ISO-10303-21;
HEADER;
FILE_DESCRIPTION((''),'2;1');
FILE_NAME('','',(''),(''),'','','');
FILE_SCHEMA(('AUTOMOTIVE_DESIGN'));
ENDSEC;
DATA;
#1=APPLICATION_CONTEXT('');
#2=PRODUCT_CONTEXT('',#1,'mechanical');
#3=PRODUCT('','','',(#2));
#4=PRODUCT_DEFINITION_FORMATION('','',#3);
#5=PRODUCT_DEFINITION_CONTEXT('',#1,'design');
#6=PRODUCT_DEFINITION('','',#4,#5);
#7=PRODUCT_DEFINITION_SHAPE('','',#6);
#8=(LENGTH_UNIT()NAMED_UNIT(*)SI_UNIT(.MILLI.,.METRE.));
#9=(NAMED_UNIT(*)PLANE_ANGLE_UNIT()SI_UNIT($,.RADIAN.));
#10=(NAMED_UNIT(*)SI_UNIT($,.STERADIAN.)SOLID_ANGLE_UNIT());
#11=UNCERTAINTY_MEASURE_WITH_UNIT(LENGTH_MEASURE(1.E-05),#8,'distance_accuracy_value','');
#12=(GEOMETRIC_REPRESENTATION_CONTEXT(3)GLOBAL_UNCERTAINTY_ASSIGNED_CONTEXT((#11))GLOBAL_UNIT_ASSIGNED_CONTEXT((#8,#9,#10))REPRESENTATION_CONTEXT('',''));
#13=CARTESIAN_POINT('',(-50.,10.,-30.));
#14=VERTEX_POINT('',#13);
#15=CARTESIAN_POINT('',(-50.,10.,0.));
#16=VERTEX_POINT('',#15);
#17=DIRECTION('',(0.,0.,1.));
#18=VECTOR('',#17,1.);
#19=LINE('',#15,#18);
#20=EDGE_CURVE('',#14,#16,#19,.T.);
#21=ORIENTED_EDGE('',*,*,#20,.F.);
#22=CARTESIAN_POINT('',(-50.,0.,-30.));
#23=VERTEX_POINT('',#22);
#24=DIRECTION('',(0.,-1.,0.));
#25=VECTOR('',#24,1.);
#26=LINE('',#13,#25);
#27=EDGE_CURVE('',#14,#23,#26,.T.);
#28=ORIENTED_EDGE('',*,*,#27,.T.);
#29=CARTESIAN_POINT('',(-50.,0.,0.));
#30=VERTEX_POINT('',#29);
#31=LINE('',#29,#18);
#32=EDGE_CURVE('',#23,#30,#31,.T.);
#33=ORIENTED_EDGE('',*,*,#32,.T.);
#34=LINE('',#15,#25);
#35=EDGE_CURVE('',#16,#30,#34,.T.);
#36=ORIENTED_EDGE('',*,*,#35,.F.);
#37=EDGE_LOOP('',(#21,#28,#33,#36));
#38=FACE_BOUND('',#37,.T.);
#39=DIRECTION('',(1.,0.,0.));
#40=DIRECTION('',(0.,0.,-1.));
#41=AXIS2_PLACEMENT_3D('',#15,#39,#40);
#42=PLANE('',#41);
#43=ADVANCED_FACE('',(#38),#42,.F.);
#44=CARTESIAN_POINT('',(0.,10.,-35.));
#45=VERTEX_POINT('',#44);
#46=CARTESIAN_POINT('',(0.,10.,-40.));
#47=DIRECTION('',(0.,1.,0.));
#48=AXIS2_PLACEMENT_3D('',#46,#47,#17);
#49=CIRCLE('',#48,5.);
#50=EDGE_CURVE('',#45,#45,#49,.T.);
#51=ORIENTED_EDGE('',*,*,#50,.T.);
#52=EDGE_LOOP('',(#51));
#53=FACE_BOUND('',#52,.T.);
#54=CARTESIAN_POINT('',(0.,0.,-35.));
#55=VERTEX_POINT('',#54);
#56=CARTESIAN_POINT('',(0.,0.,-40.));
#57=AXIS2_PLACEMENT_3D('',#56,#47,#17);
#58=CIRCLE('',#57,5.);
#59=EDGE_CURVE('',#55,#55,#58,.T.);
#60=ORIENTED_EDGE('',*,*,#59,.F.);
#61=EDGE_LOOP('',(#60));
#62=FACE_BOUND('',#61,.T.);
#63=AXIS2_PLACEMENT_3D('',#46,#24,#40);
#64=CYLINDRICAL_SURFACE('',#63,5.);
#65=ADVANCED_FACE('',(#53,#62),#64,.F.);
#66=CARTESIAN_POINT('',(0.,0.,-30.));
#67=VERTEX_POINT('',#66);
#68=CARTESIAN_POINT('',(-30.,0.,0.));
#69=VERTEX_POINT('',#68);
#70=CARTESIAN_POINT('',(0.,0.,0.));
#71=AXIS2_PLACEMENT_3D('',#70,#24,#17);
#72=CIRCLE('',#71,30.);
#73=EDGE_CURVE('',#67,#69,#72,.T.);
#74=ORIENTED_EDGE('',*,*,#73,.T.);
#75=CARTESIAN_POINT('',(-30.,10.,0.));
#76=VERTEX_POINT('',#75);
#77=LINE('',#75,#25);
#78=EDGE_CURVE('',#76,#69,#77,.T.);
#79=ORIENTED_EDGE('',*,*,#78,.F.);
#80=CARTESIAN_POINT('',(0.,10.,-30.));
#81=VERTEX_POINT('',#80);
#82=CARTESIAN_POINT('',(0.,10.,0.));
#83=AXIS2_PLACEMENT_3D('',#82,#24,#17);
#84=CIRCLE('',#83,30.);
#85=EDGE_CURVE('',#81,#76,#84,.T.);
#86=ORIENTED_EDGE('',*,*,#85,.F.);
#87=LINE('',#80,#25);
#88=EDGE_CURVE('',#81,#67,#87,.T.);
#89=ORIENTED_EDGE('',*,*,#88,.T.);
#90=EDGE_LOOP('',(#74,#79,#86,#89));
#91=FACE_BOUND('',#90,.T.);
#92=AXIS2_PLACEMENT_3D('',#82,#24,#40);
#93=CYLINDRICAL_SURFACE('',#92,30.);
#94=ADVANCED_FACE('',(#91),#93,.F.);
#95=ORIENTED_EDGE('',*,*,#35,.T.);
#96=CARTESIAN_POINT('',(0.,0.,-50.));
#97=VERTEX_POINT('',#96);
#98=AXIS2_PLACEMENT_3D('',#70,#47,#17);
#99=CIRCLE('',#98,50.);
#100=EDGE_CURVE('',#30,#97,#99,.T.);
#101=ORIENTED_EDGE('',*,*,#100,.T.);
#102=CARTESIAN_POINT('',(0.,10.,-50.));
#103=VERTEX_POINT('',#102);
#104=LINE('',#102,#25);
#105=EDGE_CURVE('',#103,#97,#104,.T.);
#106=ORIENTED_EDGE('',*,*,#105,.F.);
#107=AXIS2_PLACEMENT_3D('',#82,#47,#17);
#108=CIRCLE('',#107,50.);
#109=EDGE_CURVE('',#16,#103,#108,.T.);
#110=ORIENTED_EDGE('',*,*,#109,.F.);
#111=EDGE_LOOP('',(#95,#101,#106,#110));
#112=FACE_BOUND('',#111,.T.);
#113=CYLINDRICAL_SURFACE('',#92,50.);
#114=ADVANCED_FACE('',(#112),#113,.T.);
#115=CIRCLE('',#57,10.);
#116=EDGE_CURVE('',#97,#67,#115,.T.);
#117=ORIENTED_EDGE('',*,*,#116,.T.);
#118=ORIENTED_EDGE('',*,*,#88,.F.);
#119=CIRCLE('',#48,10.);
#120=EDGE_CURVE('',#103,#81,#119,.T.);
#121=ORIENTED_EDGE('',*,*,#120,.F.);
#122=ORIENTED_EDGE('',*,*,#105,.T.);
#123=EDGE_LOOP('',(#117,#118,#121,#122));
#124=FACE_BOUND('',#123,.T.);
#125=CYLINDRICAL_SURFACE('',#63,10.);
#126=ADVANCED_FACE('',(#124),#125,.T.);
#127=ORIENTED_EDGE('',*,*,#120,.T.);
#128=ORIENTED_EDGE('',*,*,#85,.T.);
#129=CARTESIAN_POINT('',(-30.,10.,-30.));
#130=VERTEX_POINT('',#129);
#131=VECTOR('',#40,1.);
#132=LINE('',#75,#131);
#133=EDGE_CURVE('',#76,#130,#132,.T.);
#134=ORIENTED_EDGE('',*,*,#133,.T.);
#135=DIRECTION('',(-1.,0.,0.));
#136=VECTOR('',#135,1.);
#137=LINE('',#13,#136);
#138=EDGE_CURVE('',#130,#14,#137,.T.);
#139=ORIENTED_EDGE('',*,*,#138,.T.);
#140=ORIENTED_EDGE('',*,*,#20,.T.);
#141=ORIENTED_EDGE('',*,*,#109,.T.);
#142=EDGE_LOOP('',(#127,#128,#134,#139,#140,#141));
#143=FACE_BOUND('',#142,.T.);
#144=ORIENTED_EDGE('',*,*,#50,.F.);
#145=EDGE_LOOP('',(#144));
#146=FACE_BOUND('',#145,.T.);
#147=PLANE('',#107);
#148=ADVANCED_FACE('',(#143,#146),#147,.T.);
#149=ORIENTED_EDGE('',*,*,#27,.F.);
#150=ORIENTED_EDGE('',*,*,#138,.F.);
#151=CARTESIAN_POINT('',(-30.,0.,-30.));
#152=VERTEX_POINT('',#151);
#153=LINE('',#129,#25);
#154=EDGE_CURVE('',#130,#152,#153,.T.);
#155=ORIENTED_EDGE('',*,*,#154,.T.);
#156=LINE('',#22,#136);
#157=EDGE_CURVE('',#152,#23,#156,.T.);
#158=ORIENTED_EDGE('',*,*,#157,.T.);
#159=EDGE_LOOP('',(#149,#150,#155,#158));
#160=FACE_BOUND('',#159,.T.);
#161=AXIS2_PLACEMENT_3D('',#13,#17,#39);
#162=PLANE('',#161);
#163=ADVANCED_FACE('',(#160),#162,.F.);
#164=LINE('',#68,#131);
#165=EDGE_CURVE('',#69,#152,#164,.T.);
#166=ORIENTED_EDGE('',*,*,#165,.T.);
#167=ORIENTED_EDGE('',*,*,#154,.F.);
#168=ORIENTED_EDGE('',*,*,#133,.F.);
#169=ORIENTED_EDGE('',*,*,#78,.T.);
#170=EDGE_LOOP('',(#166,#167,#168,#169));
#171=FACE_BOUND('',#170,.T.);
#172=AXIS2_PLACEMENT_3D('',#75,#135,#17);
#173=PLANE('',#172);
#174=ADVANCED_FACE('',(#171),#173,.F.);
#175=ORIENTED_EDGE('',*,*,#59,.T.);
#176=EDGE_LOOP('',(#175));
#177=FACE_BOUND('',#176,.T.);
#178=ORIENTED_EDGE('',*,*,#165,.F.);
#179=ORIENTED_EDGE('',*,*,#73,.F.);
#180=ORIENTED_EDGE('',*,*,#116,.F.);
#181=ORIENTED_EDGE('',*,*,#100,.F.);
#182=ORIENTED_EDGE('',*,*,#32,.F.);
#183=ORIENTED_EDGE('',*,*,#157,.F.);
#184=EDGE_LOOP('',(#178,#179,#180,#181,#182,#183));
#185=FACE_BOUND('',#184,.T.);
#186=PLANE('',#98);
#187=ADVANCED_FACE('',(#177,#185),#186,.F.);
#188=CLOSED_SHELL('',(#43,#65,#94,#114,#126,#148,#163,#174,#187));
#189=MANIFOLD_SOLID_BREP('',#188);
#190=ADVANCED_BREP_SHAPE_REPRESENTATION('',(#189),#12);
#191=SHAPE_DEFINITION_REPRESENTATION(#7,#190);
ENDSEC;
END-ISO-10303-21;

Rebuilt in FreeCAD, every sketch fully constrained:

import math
import FreeCAD as App
import Part
import Sketcher

V = App.Vector
Q = App.Units.Quantity

doc = App.newDocument("Part")
params = doc.addObject("Spreadsheet::Sheet", "Params")
for row, (alias, value) in enumerate([
    ("sketch1_diameter", "10 mm"),
    ("sketch1_radius", "50 mm"),
    ("sketch1_radius2", "10 mm"),
    ("pad1_length", "10 mm"),
], start=1):
    params.set(f"A{row}", alias)
    params.set(f"B{row}", "=" + value)
    params.setAlias(f"B{row}", alias)

body = doc.addObject("PartDesign::Body", "Body")

# Sketch on XZ plane
sketch1 = body.newObject("Sketcher::SketchObject", "Sketch")
sketch1.AttachmentSupport = (doc.getObject("XZ_Plane"), [""])
sketch1.MapMode = "FlatFace"
sketch1.addGeometry(Part.LineSegment(V(-50, -30, 0), V(-50, 0, 0)), False)
sketch1.addGeometry(Part.ArcOfCircle(Part.Circle(V(0, 0, 0), V(0, 0, 1), 50), math.radians(-90), math.radians(180)), False)
sketch1.addGeometry(Part.ArcOfCircle(Part.Circle(V(0, -40, 0), V(0, 0, 1), 10), math.radians(90), math.radians(270)), False)
sketch1.addGeometry(Part.ArcOfCircle(Part.Circle(V(0, 0, 0), V(0, 0, 1), 30), math.radians(-90), math.radians(180)), False)
sketch1.addGeometry(Part.LineSegment(V(-30, 0, 0), V(-30, -30, 0)), False)
sketch1.addGeometry(Part.LineSegment(V(-30, -30, 0), V(-50, -30, 0)), False)
sketch1.addGeometry(Part.Circle(V(0, -40, 0), V(0, 0, 1), 5), False)
sketch1.addConstraint(Sketcher.Constraint("Tangent", 0, 2, 1, 2))
sketch1.addConstraint(Sketcher.Constraint("Tangent", 1, 1, 2, 2))
sketch1.addConstraint(Sketcher.Constraint("Tangent", 2, 1, 3, 1))
sketch1.addConstraint(Sketcher.Constraint("Tangent", 3, 2, 4, 1))
sketch1.addConstraint(Sketcher.Constraint("Coincident", 4, 2, 5, 1))
sketch1.addConstraint(Sketcher.Constraint("Coincident", 5, 2, 0, 1))
sketch1.addConstraint(Sketcher.Constraint("Vertical", 0))
sketch1.addConstraint(Sketcher.Constraint("Vertical", 4))
sketch1.addConstraint(Sketcher.Constraint("Horizontal", 5))
sketch1.addConstraint(Sketcher.Constraint("Coincident", 1, 3, -1, 1))
sketch1.addConstraint(Sketcher.Constraint("Coincident", 3, 3, -1, 1))
sketch1.addConstraint(Sketcher.Constraint("Coincident", 6, 3, 2, 3))
sketch1.addConstraint(Sketcher.Constraint("PointOnObject", 2, 3, -2))
sketch1.addConstraint(Sketcher.Constraint("Horizontal", 2, 1, 4, 2))
sketch1.addConstraint(Sketcher.Constraint("Diameter", 6, Q("10 mm")))
sketch1.addConstraint(Sketcher.Constraint("Radius", 1, Q("50 mm")))
sketch1.addConstraint(Sketcher.Constraint("Radius", 2, Q("10 mm")))
sketch1.setExpression("Constraints[14]", "Params.sketch1_diameter")
sketch1.setExpression("Constraints[15]", "Params.sketch1_radius")
sketch1.setExpression("Constraints[16]", "Params.sketch1_radius2")
pad1 = body.newObject("PartDesign::Pad", "Pad")
pad1.Profile = sketch1
pad1.setExpression("Length", "Params.pad1_length")
pad1.Reversed = True

doc.recompute()
